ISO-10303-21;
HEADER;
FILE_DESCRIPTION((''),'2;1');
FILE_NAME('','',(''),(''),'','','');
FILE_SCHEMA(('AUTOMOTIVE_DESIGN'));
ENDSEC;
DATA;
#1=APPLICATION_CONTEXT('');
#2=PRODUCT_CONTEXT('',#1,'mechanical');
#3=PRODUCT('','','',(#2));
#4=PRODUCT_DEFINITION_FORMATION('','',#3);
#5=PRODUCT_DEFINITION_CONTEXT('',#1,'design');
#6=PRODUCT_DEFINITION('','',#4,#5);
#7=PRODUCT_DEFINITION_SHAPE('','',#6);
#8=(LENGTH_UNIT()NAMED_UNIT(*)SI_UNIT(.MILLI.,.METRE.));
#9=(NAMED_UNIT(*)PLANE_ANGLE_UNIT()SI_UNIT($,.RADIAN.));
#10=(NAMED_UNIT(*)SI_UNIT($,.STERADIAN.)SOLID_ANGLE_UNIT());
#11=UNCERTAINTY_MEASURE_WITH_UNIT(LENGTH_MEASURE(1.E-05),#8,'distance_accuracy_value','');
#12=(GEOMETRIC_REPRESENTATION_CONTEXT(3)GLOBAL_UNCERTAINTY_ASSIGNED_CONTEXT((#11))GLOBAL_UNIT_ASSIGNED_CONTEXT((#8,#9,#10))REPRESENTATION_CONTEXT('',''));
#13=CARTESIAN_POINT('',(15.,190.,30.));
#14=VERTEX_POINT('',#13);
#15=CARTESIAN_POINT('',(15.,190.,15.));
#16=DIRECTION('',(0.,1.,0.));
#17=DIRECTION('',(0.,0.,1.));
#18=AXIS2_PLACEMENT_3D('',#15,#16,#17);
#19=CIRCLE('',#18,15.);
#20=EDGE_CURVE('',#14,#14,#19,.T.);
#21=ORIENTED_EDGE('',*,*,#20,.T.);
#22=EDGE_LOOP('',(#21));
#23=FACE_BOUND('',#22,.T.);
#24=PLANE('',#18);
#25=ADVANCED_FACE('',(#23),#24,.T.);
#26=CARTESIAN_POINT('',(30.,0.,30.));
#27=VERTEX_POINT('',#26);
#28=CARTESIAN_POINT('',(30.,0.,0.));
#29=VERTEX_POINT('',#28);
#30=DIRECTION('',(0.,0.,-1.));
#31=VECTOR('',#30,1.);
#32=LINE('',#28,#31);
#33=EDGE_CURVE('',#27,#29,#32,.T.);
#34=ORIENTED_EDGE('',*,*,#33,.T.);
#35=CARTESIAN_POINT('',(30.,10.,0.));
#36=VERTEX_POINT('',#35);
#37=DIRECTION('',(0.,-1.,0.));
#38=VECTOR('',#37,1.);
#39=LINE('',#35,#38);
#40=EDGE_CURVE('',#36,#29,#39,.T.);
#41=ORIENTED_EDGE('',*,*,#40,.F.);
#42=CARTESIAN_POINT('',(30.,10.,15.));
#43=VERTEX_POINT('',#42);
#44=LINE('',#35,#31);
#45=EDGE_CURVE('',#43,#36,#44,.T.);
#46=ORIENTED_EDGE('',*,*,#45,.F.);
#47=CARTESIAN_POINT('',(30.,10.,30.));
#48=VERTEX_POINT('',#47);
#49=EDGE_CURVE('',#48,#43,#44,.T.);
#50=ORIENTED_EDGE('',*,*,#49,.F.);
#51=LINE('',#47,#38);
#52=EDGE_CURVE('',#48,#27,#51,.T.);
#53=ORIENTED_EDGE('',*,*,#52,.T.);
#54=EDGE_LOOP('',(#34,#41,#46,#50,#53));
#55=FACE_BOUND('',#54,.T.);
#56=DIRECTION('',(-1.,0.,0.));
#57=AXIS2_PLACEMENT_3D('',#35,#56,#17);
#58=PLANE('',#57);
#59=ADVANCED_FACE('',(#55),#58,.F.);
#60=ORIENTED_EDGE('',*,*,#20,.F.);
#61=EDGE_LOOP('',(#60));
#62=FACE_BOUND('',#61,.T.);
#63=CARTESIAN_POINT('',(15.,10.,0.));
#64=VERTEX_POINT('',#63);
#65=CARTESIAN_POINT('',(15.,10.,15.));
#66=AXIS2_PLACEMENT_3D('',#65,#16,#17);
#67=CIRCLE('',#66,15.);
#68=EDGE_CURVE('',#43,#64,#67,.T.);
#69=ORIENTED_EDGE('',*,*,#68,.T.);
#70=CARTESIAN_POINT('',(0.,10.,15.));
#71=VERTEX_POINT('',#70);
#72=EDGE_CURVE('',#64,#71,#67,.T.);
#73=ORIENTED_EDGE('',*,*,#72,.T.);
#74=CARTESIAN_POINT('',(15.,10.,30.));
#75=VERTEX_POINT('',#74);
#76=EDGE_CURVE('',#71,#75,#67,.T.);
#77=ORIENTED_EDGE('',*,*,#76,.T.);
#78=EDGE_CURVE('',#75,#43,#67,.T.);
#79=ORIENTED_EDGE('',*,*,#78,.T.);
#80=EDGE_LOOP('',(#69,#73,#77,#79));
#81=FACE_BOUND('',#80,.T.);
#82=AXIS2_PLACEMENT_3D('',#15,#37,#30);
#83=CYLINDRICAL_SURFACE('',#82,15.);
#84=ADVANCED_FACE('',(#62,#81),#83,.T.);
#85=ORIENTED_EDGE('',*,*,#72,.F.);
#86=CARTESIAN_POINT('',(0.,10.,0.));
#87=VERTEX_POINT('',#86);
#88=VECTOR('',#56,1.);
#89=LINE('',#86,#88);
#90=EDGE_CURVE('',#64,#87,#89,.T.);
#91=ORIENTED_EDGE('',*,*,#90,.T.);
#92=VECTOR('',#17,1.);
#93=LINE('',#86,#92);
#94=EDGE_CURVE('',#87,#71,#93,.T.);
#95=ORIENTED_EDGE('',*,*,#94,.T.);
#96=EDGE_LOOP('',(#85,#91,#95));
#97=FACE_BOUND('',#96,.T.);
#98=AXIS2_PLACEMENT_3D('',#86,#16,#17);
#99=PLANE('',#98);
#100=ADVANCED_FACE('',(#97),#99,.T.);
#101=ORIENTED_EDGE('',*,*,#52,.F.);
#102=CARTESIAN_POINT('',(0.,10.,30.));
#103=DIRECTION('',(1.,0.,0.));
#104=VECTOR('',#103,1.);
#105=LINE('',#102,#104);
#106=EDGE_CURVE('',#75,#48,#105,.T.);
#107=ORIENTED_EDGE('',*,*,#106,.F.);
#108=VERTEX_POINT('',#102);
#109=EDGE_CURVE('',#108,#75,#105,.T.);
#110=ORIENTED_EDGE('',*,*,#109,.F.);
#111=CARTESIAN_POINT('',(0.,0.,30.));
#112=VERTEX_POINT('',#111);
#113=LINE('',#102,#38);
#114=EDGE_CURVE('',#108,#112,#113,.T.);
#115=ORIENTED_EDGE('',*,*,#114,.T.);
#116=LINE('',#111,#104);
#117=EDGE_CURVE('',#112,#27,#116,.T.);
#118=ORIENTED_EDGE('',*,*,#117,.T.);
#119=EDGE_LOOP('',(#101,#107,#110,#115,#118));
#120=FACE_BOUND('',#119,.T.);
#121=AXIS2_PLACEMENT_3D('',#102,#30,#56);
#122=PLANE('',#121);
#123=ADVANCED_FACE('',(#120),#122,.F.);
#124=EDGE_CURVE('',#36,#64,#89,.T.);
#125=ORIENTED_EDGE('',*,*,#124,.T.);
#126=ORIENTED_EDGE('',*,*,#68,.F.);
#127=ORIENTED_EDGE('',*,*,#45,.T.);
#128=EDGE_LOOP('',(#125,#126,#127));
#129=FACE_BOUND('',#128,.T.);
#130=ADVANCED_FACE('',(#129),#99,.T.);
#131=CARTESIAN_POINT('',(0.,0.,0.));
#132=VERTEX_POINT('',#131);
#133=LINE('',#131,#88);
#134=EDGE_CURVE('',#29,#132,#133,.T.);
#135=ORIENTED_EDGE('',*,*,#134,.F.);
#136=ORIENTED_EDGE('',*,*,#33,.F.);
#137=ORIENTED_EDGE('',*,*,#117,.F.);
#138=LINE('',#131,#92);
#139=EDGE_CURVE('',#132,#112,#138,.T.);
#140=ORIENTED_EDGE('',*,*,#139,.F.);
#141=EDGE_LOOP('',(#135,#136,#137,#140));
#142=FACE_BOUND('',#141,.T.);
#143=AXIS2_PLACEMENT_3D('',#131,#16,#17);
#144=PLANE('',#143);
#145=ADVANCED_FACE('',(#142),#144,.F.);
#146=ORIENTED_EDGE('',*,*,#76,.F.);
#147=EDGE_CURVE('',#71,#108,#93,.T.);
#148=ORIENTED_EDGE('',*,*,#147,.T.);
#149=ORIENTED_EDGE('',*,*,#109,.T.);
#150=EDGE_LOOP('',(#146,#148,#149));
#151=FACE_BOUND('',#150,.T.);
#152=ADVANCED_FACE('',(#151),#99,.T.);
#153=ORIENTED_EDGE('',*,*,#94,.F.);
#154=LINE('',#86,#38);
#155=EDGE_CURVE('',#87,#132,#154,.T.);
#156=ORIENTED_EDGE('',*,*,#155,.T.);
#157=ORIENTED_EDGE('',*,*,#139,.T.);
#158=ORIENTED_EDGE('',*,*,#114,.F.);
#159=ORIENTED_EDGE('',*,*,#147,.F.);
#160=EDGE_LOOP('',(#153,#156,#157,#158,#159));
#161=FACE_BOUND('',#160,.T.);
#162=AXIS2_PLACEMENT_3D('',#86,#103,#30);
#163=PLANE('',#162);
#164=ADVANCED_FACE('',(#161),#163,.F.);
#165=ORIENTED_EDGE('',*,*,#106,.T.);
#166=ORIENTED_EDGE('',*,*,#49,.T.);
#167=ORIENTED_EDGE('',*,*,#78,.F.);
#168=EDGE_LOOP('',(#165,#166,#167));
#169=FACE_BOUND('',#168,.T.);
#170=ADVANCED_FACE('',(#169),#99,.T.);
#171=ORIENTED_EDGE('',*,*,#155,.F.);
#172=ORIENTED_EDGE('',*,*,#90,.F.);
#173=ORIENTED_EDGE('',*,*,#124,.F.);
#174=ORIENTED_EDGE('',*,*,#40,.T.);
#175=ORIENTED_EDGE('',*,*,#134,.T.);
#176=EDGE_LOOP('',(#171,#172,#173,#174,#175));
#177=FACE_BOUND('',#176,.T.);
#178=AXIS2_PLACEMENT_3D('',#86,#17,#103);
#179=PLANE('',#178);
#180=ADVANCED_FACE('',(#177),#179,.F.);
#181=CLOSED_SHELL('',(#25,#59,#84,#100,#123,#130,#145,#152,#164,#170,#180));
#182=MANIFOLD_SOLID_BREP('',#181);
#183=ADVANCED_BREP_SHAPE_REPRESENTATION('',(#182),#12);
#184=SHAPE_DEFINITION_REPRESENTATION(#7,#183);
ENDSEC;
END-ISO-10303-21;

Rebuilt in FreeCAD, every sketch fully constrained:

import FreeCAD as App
import Part
import Sketcher

V = App.Vector
Q = App.Units.Quantity


def add_polygon(sketch, points):
    """Adds a closed chain of lines whose ends are joined by coincident constraints."""
    first, n = sketch.GeometryCount, len(points)
    for a, b in zip(points, points[1:] + points[:1]):
        sketch.addGeometry(Part.LineSegment(App.Vector(*a, 0), App.Vector(*b, 0)), False)
    for i in range(n):
        sketch.addConstraint(Sketcher.Constraint("Coincident", first + i, 2, first + (i + 1) % n, 1))

doc = App.newDocument("Part")
params = doc.addObject("Spreadsheet::Sheet", "Params")
for row, (alias, value) in enumerate([
    ("sketch1_width", "30 mm"),
    ("pad1_length", "10 mm"),
    ("sketch2_diameter", "30 mm"),
    ("pad2_length", "180 mm"),
], start=1):
    params.set(f"A{row}", alias)
    params.set(f"B{row}", "=" + value)
    params.setAlias(f"B{row}", alias)

body = doc.addObject("PartDesign::Body", "Body")

# Sketch on XZ plane
sketch1 = body.newObject("Sketcher::SketchObject", "Sketch")
sketch1.AttachmentSupport = (doc.getObject("XZ_Plane"), [""])
sketch1.MapMode = "FlatFace"
add_polygon(sketch1, [(0, 0), (0, 30), (30, 30), (30, 0)])  # lines 0-3
sketch1.addConstraint([
    Sketcher.Constraint("Vertical", 0),
    Sketcher.Constraint("Horizontal", 1),
    Sketcher.Constraint("Vertical", 2),
    Sketcher.Constraint("Horizontal", 3),
    Sketcher.Constraint("Coincident", 3, 2, -1, 1),
    Sketcher.Constraint("Equal", 3, 0),
    Sketcher.Constraint("DistanceX", 1, 1, 1, 2, Q("30 mm")),
])
sketch1.setExpression("Constraints[10]", "Params.sketch1_width")
pad1 = body.newObject("PartDesign::Pad", "Pad")
pad1.Profile = sketch1
pad1.setExpression("Length", "Params.pad1_length")
pad1.Reversed = True

# Sketch on XZ plane
sketch2 = body.newObject("Sketcher::SketchObject", "Sketch001")
sketch2.AttachmentSupport = (doc.getObject("XZ_Plane"), [""])
sketch2.MapMode = "FlatFace"
sketch2.AttachmentOffset = App.Placement(V(0, 0, -10), App.Rotation())
sketch2.addGeometry(Part.Circle(V(15, 15, 0), V(0, 0, 1), 15), False)
sketch2.addConstraint([
    Sketcher.Constraint("Diameter", 0, Q("30 mm")),
    Sketcher.Constraint("DistanceX", -1, 1, 0, 3, Q("15 mm")),
    Sketcher.Constraint("DistanceY", -1, 1, 0, 3, Q("15 mm")),
])
sketch2.setExpression("Constraints[0]", "Params.sketch2_diameter")
pad2 = body.newObject("PartDesign::Pad", "Pad001")
pad2.Profile = sketch2
pad2.setExpression("Length", "Params.pad2_length")
pad2.Reversed = True

doc.recompute()
